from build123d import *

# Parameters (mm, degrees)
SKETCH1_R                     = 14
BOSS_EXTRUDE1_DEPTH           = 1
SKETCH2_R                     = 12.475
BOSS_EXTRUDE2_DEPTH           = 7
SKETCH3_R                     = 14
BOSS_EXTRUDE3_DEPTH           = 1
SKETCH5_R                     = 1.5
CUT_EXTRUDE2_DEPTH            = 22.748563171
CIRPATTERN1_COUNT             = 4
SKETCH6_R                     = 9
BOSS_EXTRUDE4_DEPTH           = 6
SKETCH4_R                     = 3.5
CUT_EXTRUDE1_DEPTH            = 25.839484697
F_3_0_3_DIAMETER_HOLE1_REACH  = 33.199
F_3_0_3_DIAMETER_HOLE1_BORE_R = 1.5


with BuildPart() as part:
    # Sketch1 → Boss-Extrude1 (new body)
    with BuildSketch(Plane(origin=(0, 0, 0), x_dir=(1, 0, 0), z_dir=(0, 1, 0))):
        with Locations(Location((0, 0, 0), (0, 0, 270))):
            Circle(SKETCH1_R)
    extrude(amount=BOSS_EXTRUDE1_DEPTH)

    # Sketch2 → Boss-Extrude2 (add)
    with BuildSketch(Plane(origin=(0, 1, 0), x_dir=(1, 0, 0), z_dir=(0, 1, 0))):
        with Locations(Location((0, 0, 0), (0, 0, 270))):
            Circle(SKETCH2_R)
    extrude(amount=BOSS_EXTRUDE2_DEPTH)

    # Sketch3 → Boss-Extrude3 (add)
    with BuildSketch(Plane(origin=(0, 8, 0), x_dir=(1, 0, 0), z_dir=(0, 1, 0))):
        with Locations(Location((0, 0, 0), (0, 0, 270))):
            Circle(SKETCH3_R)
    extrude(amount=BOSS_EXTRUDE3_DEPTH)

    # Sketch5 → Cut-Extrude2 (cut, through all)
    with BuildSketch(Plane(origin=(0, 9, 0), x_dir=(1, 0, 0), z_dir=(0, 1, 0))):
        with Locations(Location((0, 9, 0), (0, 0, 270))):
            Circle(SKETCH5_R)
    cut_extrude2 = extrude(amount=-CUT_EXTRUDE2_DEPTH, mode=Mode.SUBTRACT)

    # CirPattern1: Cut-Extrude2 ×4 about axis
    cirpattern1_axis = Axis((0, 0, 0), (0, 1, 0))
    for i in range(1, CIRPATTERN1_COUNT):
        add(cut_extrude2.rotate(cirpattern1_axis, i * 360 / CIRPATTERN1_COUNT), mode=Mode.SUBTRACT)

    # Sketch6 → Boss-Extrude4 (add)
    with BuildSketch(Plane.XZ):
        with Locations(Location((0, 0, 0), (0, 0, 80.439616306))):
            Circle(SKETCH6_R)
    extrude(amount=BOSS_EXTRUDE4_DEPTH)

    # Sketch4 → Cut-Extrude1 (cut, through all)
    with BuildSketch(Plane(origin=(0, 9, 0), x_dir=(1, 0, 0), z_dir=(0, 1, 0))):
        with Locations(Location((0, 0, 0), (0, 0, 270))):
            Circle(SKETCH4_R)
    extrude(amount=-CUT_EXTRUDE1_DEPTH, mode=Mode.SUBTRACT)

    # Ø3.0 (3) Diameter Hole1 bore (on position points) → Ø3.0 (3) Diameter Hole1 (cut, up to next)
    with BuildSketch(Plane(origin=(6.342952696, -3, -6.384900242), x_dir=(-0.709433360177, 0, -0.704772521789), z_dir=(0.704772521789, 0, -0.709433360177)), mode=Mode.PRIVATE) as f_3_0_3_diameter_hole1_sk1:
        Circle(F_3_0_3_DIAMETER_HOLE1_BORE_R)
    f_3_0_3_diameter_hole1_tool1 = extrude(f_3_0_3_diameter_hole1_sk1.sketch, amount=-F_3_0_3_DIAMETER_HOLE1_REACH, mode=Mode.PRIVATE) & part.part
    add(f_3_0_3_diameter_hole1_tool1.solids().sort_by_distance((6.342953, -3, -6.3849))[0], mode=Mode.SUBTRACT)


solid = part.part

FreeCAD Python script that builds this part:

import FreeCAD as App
import Part
import Sketcher
Q = App.Units.Quantity

doc = App.newDocument("Part")
body = doc.addObject("PartDesign::Body", "Body")

sketch1 = body.newObject("Sketcher::SketchObject", "Sketch")
sketch1.AttachmentSupport = (doc.getObject("XZ_Plane"), [""])
sketch1.MapMode = "FlatFace"
sketch1.addGeometry(Part.Circle(App.Vector(0, 0, 0), App.Vector(0, 0, 1), 14), False)
sketch1.addConstraint([
    Sketcher.Constraint("Coincident", 0, 3, -1, 1),
    Sketcher.Constraint("Diameter", 0, Q("28 mm")),
])
pad1 = body.newObject("PartDesign::Pad", "Pad")
pad1.Profile = sketch1
pad1.Length = 1
pad1.Reversed = True

sketch2 = body.newObject("Sketcher::SketchObject", "Sketch001")
sketch2.AttachmentSupport = (doc.getObject("XZ_Plane"), [""])
sketch2.MapMode = "FlatFace"
sketch2.AttachmentOffset = App.Placement(App.Vector(0, 0, -1), App.Rotation())
sketch2.addGeometry(Part.Circle(App.Vector(0, 0, 0), App.Vector(0, 0, 1), 12), False)
sketch2.addConstraint([
    Sketcher.Constraint("Coincident", 0, 3, -1, 1),
    Sketcher.Constraint("Diameter", 0, Q("24.95 mm")),
])
pad2 = body.newObject("PartDesign::Pad", "Pad001")
pad2.Profile = sketch2
pad2.Length = 7
pad2.Reversed = True

sketch3 = body.newObject("Sketcher::SketchObject", "Sketch002")
sketch3.AttachmentSupport = (doc.getObject("XZ_Plane"), [""])
sketch3.MapMode = "FlatFace"
sketch3.AttachmentOffset = App.Placement(App.Vector(0, 0, -8), App.Rotation())
sketch3.addGeometry(Part.Circle(App.Vector(0, 0, 0), App.Vector(0, 0, 1), 14), False)
sketch3.addConstraint([
    Sketcher.Constraint("Coincident", 0, 3, -1, 1),
    Sketcher.Constraint("Diameter", 0, Q("28 mm")),
])
pad3 = body.newObject("PartDesign::Pad", "Pad002")
pad3.Profile = sketch3
pad3.Length = 1
pad3.Reversed = True

sketch4 = body.newObject("Sketcher::SketchObject", "Sketch003")
sketch4.AttachmentSupport = (doc.getObject("XZ_Plane"), [""])
sketch4.MapMode = "FlatFace"
sketch4.AttachmentOffset = App.Placement(App.Vector(0, 0, -9), App.Rotation())
sketch4.addGeometry(Part.Circle(App.Vector(0, -9, 0), App.Vector(0, 0, 1), 1.5), False)
sketch4.addConstraint([
    Sketcher.Constraint("PointOnObject", 0, 3, -2),
    Sketcher.Constraint("Diameter", 0, Q("3 mm")),
    Sketcher.Constraint("DistanceY", 0, 3, -1, 1, Q("9 mm")),
])
pocket1 = body.newObject("PartDesign::Pocket", "Pocket")
pocket1.Profile = sketch4
pocket1.Type = "ThroughAll"
pocket1.Reversed = True
doc.recompute()

polarpattern = body.newObject("PartDesign::PolarPattern", "PolarPattern")
polarpattern.Originals = [pocket1]
polarpattern.Axis = (doc.getObject("Y_Axis"), [""])
polarpattern.Angle = 360
polarpattern.Occurrences = 4
body.Tip = polarpattern

sketch5 = body.newObject("Sketcher::SketchObject", "Sketch004")
sketch5.AttachmentSupport = (doc.getObject("XZ_Plane"), [""])
sketch5.MapMode = "FlatFace"
sketch5.addGeometry(Part.Circle(App.Vector(0, 0, 0), App.Vector(0, 0, 1), 9), False)
sketch5.addConstraint([
    Sketcher.Constraint("Coincident", 0, 3, -1, 1),
    Sketcher.Constraint("Diameter", 0, Q("18 mm")),
])
pad4 = body.newObject("PartDesign::Pad", "Pad003")
pad4.Profile = sketch5
pad4.Length = 6

sketch6 = body.newObject("Sketcher::SketchObject", "Sketch005")
sketch6.AttachmentSupport = (doc.getObject("XZ_Plane"), [""])
sketch6.MapMode = "FlatFace"
sketch6.AttachmentOffset = App.Placement(App.Vector(0, 0, -9), App.Rotation())
sketch6.addGeometry(Part.Circle(App.Vector(0, 0, 0), App.Vector(0, 0, 1), 3.5), False)
sketch6.addConstraint([
    Sketcher.Constraint("Coincident", 0, 3, -1, 1),
    Sketcher.Constraint("Diameter", 0, Q("7 mm")),
])
pocket2 = body.newObject("PartDesign::Pocket", "Pocket001")
pocket2.Profile = sketch6
pocket2.Type = "ThroughAll"
pocket2.Reversed = True

sketch7 = body.newObject("Sketcher::SketchObject", "Sketch006")
sketch7.Placement = App.Placement(App.Vector(6.342953, -3, -6.3849), App.Rotation(App.Vector(-0.70943336, 0, -0.704772522), App.Vector(0, 1, 0), App.Vector(0.704772522, 0, -0.70943336), "ZXY"))
sketch7.addGeometry(Part.Circle(App.Vector(0, 0, 0), App.Vector(0, 0, 1), 1.5), False)
sketch7.addConstraint([
    Sketcher.Constraint("Coincident", 0, 3, -1, 1),
    Sketcher.Constraint("Diameter", 0, Q("3 mm")),
])
pocket3 = body.newObject("PartDesign::Pocket", "Pocket002")
pocket3.Profile = sketch7
pocket3.Type = "UpToFirst"

doc.recompute()
